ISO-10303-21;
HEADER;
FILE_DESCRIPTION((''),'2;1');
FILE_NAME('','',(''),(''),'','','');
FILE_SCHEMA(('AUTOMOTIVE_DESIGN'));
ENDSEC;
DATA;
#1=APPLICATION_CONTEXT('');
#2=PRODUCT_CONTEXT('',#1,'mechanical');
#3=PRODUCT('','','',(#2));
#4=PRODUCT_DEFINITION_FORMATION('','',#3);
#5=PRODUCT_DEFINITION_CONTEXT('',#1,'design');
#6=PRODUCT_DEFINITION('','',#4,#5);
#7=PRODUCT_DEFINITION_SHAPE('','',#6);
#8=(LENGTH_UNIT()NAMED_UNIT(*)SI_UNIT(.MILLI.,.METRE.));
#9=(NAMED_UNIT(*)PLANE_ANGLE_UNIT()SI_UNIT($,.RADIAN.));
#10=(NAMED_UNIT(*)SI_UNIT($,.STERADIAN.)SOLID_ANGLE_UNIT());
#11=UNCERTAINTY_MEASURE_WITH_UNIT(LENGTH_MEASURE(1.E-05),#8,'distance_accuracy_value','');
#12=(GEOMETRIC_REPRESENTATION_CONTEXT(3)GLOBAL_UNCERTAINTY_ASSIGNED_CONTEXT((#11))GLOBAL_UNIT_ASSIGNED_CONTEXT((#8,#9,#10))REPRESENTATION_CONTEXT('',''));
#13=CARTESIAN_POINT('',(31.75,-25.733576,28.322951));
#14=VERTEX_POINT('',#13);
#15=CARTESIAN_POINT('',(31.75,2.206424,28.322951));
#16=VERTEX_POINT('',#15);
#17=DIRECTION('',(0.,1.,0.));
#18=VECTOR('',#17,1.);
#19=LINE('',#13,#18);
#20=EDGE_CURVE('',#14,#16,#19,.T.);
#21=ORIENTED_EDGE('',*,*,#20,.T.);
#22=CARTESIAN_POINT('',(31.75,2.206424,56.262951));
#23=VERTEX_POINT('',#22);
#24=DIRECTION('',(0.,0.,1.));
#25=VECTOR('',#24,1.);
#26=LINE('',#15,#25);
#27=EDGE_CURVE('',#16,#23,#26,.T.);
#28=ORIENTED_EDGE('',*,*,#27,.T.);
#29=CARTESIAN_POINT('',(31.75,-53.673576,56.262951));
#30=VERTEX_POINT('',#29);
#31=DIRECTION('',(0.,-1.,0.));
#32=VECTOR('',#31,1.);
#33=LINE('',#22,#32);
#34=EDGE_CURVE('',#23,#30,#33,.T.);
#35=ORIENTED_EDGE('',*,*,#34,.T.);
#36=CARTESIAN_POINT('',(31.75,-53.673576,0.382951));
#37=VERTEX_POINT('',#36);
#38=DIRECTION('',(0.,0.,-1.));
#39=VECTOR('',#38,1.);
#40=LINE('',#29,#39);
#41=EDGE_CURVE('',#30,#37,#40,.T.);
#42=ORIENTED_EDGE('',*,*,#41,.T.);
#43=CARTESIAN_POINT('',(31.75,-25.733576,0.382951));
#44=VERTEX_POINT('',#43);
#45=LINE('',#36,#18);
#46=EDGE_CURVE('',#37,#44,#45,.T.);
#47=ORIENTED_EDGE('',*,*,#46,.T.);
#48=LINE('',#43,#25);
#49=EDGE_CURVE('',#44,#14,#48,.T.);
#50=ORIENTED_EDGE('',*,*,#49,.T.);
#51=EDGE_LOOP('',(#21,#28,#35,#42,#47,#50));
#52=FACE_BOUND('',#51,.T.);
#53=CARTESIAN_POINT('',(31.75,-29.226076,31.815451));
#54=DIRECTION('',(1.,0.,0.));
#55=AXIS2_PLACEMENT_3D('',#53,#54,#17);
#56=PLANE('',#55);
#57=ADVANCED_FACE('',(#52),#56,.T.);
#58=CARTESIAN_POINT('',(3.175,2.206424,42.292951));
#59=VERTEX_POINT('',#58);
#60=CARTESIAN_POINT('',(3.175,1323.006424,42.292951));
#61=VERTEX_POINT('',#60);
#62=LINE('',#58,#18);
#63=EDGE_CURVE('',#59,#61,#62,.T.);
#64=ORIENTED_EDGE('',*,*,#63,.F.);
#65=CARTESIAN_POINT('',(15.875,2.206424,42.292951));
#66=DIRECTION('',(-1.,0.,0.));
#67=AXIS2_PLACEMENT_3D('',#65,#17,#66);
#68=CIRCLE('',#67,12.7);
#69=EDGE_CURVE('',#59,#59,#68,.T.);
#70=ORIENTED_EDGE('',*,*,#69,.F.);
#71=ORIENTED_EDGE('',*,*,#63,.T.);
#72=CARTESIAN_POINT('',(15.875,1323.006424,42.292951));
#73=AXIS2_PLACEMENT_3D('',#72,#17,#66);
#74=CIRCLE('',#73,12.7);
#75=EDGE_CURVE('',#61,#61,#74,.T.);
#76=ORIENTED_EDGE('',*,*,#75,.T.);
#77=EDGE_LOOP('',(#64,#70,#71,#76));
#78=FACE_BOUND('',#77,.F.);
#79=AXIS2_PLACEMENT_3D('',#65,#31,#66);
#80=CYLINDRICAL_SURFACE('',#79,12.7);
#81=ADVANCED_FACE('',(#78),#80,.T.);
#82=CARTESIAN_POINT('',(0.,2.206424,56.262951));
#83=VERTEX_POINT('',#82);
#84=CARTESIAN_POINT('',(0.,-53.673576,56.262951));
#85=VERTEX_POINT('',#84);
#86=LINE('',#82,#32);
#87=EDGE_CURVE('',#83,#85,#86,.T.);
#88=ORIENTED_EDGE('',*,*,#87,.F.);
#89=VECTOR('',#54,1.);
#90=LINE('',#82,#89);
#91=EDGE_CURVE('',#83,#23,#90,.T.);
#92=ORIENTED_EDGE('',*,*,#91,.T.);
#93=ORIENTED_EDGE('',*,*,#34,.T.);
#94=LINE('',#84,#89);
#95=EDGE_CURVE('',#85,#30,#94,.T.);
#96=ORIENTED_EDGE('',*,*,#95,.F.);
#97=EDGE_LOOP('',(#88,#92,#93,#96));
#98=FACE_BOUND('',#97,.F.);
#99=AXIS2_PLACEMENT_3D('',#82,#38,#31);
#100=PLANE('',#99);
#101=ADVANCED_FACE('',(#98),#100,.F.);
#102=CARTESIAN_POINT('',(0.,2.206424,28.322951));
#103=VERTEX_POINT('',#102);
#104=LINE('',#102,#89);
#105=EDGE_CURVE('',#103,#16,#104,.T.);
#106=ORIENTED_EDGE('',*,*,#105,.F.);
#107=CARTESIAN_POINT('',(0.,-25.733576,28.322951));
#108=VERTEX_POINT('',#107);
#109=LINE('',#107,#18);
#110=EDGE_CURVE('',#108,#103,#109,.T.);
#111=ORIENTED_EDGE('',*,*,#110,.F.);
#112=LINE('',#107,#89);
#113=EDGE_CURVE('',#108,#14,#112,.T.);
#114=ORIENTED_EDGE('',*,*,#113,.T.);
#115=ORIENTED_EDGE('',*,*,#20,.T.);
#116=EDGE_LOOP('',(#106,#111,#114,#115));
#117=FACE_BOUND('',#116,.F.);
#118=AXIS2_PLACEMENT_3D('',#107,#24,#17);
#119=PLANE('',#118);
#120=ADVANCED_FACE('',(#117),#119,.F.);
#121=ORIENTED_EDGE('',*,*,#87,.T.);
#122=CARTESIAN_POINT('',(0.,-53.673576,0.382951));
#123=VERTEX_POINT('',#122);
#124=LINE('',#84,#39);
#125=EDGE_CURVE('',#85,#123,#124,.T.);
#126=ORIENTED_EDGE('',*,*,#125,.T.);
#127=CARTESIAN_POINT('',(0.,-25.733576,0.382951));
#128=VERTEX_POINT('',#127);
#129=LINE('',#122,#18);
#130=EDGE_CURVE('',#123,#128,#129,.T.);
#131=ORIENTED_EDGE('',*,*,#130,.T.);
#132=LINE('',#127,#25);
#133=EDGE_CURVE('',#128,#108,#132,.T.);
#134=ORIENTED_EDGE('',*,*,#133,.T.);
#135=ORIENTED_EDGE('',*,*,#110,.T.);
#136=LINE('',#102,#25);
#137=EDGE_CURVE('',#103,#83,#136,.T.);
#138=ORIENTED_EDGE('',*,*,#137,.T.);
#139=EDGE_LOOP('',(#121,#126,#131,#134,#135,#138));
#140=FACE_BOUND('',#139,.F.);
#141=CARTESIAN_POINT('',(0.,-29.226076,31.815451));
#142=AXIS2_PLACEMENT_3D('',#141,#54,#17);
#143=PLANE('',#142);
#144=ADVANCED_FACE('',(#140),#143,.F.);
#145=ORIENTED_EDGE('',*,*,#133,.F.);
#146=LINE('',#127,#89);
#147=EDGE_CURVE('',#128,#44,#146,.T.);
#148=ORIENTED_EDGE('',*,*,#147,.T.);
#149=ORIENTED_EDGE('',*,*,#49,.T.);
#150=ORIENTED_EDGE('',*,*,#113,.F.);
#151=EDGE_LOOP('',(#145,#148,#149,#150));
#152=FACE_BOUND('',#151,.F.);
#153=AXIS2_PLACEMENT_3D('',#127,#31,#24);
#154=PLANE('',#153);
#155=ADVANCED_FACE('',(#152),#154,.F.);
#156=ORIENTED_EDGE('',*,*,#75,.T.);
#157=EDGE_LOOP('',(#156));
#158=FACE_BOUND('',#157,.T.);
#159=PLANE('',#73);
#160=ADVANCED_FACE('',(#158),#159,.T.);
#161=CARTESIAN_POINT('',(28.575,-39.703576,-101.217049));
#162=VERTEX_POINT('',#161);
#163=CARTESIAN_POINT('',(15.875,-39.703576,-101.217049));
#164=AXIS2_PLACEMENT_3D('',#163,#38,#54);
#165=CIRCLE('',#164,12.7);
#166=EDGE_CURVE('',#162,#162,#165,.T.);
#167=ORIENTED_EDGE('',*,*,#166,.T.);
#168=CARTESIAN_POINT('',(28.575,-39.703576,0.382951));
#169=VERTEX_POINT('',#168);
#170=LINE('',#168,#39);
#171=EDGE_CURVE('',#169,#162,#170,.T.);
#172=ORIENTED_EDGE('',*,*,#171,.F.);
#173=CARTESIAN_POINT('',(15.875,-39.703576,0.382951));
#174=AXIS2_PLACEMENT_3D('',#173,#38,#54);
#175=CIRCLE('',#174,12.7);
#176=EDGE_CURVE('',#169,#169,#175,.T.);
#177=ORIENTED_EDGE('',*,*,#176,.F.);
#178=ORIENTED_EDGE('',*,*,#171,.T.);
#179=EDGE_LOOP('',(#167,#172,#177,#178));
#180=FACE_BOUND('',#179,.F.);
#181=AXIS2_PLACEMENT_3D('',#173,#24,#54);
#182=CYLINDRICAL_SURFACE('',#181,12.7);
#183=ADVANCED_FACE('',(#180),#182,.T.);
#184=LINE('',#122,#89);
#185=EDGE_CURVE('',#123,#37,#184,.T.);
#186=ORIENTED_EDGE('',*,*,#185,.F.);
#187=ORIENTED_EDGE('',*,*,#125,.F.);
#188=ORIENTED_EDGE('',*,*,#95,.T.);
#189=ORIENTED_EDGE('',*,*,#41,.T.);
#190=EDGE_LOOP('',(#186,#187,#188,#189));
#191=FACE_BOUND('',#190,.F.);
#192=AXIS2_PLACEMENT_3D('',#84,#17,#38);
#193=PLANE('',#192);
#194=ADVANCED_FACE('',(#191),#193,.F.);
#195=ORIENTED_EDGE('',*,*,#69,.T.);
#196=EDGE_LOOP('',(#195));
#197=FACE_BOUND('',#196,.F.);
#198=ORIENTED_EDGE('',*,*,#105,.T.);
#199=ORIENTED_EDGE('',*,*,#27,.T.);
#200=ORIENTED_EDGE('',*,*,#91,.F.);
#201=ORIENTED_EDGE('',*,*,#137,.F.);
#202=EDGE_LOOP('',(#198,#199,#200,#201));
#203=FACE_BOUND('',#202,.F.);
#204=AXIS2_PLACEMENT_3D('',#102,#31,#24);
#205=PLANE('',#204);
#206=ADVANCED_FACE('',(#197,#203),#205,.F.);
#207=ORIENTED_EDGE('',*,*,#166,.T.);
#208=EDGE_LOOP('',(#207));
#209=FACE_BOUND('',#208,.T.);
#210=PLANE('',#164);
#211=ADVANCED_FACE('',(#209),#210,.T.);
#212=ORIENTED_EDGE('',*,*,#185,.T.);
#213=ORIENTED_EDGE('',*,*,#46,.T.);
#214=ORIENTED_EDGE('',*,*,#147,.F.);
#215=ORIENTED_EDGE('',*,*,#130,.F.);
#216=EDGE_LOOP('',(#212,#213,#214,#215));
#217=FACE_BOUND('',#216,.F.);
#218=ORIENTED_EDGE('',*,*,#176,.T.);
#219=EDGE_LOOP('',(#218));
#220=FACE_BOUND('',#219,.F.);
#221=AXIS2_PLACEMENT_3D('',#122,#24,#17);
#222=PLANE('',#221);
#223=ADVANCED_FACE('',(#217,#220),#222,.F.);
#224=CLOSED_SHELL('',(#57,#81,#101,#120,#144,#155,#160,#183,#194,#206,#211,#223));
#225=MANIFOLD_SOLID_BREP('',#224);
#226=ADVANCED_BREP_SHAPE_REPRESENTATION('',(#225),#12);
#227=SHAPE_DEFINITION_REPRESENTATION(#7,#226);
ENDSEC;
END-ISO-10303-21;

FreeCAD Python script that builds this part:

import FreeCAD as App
import Part
import Sketcher
Q = App.Units.Quantity


def add_polygon(sketch, points):
    """Adds a closed chain of lines whose ends are joined by coincident constraints."""
    first, n = sketch.GeometryCount, len(points)
    for a, b in zip(points, points[1:] + points[:1]):
        sketch.addGeometry(Part.LineSegment(App.Vector(*a, 0), App.Vector(*b, 0)), False)
    for i in range(n):
        sketch.addConstraint(Sketcher.Constraint("Coincident", first + i, 2, first + (i + 1) % n, 1))

doc = App.newDocument("Part")
params = doc.addObject("Spreadsheet::Sheet", "Params")
for row, (alias, value) in enumerate([
    ("sketch1_width", "1.1 in"),
    ("pad1_length", "1.25 in"),
    ("sketch2_diameter", "1 in"),
    ("pad2_length", "52 in"),
    ("sketch3_diameter", "1 in"),
    ("pad3_length", "4 in"),
], start=1):
    params.set(f"A{row}", alias)
    params.set(f"B{row}", "=" + value)
    params.setAlias(f"B{row}", alias)

body = doc.addObject("PartDesign::Body", "Body")

# Sketch on YZ plane
sketch1 = body.newObject("Sketcher::SketchObject", "Sketch")
sketch1.AttachmentSupport = (doc.getObject("YZ_Plane"), [""])
sketch1.MapMode = "FlatFace"
add_polygon(sketch1, [(-53.673576, 56.262951), (-53.673576, 0.382951), (-25.733576, 0.382951), (-25.733576, 28.322951), (2.206424, 28.322951), (2.206424, 56.262951)])  # lines 0-5
sketch1.addConstraint([
    Sketcher.Constraint("Vertical", 0),
    Sketcher.Constraint("Horizontal", 1),
    Sketcher.Constraint("Vertical", 2),
    Sketcher.Constraint("Horizontal", 3),
    Sketcher.Constraint("Vertical", 4),
    Sketcher.Constraint("Horizontal", 5),
    Sketcher.Constraint("Equal", 1, 3),
    Sketcher.Constraint("Equal", 5, 0),
    Sketcher.Constraint("Equal", 3, 2),
    Sketcher.Constraint("DistanceX", 1, 1, 1, 2, Q("1.1 in")),
    Sketcher.Constraint("DistanceY", -1, 1, 0, 2, Q("0.382951 mm")),
    Sketcher.Constraint("DistanceX", 0, 2, -1, 1, Q("53.673576 mm")),
])
sketch1.setExpression("Constraints[15]", "Params.sketch1_width")
pad1 = body.newObject("PartDesign::Pad", "Pad")
pad1.Profile = sketch1
pad1.setExpression("Length", "Params.pad1_length")

# Sketch on XZ plane
sketch2 = body.newObject("Sketcher::SketchObject", "Sketch001")
sketch2.AttachmentSupport = (doc.getObject("XZ_Plane"), [""])
sketch2.MapMode = "FlatFace"
sketch2.AttachmentOffset = App.Placement(App.Vector(0, 0, -2.206424), App.Rotation())
sketch2.addGeometry(Part.Circle(App.Vector(15.875, 42.292951, 0), App.Vector(0, 0, 1), 12.7), False)
sketch2.addConstraint([
    Sketcher.Constraint("Diameter", 0, Q("1 in")),
    Sketcher.Constraint("DistanceX", -1, 1, 0, 3, Q("0.625 in")),
    Sketcher.Constraint("DistanceY", -1, 1, 0, 3, Q("42.292951 mm")),
])
sketch2.setExpression("Constraints[0]", "Params.sketch2_diameter")
pad2 = body.newObject("PartDesign::Pad", "Pad001")
pad2.Profile = sketch2
pad2.setExpression("Length", "Params.pad2_length")
pad2.Reversed = True

# Sketch on XY plane
sketch3 = body.newObject("Sketcher::SketchObject", "Sketch002")
sketch3.AttachmentSupport = (doc.getObject("XY_Plane"), [""])
sketch3.MapMode = "FlatFace"
sketch3.AttachmentOffset = App.Placement(App.Vector(0, 0, 0.382951), App.Rotation())
sketch3.addGeometry(Part.Circle(App.Vector(15.875, -39.703576, 0), App.Vector(0, 0, 1), 12.7), False)
sketch3.addConstraint([
    Sketcher.Constraint("Diameter", 0, Q("1 in")),
    Sketcher.Constraint("DistanceX", -1, 1, 0, 3, Q("0.625 in")),
    Sketcher.Constraint("DistanceY", 0, 3, -1, 1, Q("39.703576 mm")),
])
sketch3.setExpression("Constraints[0]", "Params.sketch3_diameter")
pad3 = body.newObject("PartDesign::Pad", "Pad002")
pad3.Profile = sketch3
pad3.setExpression("Length", "Params.pad3_length")
pad3.Reversed = True

doc.recompute()
